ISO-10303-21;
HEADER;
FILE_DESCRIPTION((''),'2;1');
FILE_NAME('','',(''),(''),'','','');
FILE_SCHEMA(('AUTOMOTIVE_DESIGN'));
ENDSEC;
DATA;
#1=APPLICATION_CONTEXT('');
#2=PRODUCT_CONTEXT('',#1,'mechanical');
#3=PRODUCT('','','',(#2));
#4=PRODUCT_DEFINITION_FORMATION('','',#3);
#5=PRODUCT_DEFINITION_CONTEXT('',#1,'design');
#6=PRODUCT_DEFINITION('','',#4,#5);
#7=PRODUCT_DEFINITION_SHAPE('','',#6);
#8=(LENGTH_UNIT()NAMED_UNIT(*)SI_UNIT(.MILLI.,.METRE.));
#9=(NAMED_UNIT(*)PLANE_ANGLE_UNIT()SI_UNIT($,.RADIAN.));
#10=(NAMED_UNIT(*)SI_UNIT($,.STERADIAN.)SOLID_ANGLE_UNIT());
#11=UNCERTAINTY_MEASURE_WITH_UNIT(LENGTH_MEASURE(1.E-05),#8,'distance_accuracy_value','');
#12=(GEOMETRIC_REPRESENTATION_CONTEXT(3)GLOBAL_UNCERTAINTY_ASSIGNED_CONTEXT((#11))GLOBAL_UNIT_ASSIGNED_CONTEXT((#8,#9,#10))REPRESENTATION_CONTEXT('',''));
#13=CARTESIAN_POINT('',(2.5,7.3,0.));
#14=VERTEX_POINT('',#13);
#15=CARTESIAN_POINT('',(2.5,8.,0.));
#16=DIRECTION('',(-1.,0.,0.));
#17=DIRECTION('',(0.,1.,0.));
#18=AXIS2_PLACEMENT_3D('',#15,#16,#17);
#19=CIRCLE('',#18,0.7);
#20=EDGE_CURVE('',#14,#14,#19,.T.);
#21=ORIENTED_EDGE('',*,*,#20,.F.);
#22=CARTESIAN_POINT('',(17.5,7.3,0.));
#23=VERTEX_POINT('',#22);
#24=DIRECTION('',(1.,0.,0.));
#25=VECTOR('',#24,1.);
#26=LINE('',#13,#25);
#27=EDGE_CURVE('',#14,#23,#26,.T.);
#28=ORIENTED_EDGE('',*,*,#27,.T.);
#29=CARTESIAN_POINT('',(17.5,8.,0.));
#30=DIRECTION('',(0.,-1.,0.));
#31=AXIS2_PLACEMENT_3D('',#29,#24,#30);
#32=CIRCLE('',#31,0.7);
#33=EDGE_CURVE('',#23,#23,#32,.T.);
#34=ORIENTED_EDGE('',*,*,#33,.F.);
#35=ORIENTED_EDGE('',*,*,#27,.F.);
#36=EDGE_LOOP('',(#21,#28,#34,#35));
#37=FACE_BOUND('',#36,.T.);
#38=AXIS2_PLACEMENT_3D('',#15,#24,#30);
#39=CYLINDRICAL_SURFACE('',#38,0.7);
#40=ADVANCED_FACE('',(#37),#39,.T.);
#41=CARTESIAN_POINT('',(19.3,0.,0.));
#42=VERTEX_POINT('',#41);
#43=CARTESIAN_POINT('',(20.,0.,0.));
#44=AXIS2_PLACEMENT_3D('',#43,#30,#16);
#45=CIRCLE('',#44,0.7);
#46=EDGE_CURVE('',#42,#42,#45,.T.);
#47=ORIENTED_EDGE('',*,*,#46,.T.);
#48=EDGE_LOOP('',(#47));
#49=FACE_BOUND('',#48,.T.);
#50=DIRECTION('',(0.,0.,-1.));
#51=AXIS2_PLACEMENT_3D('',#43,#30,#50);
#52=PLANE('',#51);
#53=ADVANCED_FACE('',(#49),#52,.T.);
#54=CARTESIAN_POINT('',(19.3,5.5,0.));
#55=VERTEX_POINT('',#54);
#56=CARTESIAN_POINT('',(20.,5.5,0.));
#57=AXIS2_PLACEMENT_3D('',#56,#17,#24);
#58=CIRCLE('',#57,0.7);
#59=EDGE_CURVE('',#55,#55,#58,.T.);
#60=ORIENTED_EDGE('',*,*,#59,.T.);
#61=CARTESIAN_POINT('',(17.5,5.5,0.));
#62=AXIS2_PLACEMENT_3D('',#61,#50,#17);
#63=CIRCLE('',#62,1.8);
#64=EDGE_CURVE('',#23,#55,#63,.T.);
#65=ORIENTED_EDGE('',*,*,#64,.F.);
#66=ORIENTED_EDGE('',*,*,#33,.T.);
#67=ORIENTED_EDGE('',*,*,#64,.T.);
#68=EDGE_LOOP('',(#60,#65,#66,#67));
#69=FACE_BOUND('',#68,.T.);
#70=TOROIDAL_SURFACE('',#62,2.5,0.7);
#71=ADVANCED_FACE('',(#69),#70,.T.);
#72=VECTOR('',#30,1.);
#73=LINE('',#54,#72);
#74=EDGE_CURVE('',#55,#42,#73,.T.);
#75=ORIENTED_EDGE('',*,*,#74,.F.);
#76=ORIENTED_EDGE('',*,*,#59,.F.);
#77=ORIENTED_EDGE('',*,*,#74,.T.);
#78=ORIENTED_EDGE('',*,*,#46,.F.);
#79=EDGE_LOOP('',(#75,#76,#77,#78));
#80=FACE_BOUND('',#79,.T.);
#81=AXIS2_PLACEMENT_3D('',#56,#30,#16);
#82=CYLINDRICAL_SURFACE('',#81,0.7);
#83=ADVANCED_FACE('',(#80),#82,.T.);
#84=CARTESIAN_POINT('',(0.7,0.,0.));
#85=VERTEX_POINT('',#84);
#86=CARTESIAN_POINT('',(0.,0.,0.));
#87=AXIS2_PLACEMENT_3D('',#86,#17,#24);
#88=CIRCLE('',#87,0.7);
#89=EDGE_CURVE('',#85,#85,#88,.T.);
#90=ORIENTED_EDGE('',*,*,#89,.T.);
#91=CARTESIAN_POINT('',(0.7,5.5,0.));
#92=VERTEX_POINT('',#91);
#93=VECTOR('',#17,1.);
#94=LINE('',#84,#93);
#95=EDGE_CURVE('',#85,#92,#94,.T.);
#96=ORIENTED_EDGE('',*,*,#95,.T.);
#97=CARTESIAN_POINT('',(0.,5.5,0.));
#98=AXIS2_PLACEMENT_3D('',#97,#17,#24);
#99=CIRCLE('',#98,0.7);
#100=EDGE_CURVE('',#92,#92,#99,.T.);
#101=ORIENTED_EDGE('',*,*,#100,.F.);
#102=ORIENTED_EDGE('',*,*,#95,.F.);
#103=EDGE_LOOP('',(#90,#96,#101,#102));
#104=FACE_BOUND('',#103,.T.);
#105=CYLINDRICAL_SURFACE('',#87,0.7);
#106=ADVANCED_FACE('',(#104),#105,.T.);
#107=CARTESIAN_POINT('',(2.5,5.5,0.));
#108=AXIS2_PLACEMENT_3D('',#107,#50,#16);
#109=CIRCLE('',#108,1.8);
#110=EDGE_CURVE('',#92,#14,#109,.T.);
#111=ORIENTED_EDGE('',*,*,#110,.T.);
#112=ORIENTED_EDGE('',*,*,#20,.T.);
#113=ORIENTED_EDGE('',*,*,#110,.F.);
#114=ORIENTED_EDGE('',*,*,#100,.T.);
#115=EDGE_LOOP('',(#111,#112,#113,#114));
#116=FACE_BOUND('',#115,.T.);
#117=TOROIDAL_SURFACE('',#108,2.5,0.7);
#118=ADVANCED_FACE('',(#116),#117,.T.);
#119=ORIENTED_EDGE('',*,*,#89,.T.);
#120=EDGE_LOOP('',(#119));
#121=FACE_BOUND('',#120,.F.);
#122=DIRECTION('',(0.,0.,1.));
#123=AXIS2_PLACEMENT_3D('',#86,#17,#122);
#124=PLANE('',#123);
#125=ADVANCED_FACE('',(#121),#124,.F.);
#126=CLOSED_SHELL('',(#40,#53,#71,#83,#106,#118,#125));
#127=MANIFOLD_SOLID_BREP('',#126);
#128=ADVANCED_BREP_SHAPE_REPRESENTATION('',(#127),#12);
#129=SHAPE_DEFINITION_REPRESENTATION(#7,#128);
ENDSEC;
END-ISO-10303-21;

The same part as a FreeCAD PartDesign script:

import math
import FreeCAD as App
import Part
import Sketcher

V = App.Vector
Q = App.Units.Quantity

doc = App.newDocument("Part")
body = doc.addObject("PartDesign::Body", "Body")

# Sketch on XZ plane
sketch1 = body.newObject("Sketcher::SketchObject", "Sketch")
sketch1.AttachmentSupport = (doc.getObject("XZ_Plane"), [""])
sketch1.MapMode = "FlatFace"
sketch1.addGeometry(Part.Circle(V(0, 0, 0), V(0, 0, 1), 0.7), False)
sketch1.addConstraint([
    Sketcher.Constraint("Coincident", 0, 3, -1, 1),
    Sketcher.Constraint("Diameter", 0, Q("1.4 mm")),
])

# Sketch on XY plane
sketch2 = body.newObject("Sketcher::SketchObject", "Sketch001")
sketch2.AttachmentSupport = (doc.getObject("XY_Plane"), [""])
sketch2.MapMode = "FlatFace"
sketch2.addGeometry([
    Part.LineSegment(V(0, 0, 0), V(0, 5.5, 0)),  # 0
    Part.ArcOfCircle(Part.Circle(V(2.5, 5.5, 0), V(0, 0, 1), 2.5), math.radians(90), math.radians(180)),  # 1
    Part.LineSegment(V(2.5, 8, 0), V(17.5, 8, 0)),  # 2
    Part.ArcOfCircle(Part.Circle(V(17.5, 5.5, 0), V(0, 0, 1), 2.5), math.radians(0), math.radians(90)),  # 3
    Part.LineSegment(V(20, 5.5, 0), V(20, 0, 0)),  # 4
], False)
sketch2.addConstraint([
    Sketcher.Constraint("Tangent", 0, 2, 1, 2),
    Sketcher.Constraint("Tangent", 1, 1, 2, 1),
    Sketcher.Constraint("Tangent", 2, 2, 3, 2),
    Sketcher.Constraint("Tangent", 3, 1, 4, 1),
    Sketcher.Constraint("Vertical", 0),
    Sketcher.Constraint("Horizontal", 2),
    Sketcher.Constraint("Vertical", 4),
    Sketcher.Constraint("Coincident", 0, 1, -1, 1),
    Sketcher.Constraint("Equal", 1, 3),
    Sketcher.Constraint("PointOnObject", 4, 2, -1),
    Sketcher.Constraint("Radius", 1, Q("2.5 mm")),
    Sketcher.Constraint("DistanceX", 2, 1, 2, 2, Q("15 mm")),
    Sketcher.Constraint("DistanceY", 0, 1, 0, 2, Q("5.5 mm")),
])
doc.recompute()

additivepipe = body.newObject("PartDesign::AdditivePipe", "AdditivePipe")
additivepipe.Profile = sketch1
additivepipe.Spine = (sketch2, ["Edge1", "Edge2", "Edge3", "Edge4", "Edge5"])

doc.recompute()
